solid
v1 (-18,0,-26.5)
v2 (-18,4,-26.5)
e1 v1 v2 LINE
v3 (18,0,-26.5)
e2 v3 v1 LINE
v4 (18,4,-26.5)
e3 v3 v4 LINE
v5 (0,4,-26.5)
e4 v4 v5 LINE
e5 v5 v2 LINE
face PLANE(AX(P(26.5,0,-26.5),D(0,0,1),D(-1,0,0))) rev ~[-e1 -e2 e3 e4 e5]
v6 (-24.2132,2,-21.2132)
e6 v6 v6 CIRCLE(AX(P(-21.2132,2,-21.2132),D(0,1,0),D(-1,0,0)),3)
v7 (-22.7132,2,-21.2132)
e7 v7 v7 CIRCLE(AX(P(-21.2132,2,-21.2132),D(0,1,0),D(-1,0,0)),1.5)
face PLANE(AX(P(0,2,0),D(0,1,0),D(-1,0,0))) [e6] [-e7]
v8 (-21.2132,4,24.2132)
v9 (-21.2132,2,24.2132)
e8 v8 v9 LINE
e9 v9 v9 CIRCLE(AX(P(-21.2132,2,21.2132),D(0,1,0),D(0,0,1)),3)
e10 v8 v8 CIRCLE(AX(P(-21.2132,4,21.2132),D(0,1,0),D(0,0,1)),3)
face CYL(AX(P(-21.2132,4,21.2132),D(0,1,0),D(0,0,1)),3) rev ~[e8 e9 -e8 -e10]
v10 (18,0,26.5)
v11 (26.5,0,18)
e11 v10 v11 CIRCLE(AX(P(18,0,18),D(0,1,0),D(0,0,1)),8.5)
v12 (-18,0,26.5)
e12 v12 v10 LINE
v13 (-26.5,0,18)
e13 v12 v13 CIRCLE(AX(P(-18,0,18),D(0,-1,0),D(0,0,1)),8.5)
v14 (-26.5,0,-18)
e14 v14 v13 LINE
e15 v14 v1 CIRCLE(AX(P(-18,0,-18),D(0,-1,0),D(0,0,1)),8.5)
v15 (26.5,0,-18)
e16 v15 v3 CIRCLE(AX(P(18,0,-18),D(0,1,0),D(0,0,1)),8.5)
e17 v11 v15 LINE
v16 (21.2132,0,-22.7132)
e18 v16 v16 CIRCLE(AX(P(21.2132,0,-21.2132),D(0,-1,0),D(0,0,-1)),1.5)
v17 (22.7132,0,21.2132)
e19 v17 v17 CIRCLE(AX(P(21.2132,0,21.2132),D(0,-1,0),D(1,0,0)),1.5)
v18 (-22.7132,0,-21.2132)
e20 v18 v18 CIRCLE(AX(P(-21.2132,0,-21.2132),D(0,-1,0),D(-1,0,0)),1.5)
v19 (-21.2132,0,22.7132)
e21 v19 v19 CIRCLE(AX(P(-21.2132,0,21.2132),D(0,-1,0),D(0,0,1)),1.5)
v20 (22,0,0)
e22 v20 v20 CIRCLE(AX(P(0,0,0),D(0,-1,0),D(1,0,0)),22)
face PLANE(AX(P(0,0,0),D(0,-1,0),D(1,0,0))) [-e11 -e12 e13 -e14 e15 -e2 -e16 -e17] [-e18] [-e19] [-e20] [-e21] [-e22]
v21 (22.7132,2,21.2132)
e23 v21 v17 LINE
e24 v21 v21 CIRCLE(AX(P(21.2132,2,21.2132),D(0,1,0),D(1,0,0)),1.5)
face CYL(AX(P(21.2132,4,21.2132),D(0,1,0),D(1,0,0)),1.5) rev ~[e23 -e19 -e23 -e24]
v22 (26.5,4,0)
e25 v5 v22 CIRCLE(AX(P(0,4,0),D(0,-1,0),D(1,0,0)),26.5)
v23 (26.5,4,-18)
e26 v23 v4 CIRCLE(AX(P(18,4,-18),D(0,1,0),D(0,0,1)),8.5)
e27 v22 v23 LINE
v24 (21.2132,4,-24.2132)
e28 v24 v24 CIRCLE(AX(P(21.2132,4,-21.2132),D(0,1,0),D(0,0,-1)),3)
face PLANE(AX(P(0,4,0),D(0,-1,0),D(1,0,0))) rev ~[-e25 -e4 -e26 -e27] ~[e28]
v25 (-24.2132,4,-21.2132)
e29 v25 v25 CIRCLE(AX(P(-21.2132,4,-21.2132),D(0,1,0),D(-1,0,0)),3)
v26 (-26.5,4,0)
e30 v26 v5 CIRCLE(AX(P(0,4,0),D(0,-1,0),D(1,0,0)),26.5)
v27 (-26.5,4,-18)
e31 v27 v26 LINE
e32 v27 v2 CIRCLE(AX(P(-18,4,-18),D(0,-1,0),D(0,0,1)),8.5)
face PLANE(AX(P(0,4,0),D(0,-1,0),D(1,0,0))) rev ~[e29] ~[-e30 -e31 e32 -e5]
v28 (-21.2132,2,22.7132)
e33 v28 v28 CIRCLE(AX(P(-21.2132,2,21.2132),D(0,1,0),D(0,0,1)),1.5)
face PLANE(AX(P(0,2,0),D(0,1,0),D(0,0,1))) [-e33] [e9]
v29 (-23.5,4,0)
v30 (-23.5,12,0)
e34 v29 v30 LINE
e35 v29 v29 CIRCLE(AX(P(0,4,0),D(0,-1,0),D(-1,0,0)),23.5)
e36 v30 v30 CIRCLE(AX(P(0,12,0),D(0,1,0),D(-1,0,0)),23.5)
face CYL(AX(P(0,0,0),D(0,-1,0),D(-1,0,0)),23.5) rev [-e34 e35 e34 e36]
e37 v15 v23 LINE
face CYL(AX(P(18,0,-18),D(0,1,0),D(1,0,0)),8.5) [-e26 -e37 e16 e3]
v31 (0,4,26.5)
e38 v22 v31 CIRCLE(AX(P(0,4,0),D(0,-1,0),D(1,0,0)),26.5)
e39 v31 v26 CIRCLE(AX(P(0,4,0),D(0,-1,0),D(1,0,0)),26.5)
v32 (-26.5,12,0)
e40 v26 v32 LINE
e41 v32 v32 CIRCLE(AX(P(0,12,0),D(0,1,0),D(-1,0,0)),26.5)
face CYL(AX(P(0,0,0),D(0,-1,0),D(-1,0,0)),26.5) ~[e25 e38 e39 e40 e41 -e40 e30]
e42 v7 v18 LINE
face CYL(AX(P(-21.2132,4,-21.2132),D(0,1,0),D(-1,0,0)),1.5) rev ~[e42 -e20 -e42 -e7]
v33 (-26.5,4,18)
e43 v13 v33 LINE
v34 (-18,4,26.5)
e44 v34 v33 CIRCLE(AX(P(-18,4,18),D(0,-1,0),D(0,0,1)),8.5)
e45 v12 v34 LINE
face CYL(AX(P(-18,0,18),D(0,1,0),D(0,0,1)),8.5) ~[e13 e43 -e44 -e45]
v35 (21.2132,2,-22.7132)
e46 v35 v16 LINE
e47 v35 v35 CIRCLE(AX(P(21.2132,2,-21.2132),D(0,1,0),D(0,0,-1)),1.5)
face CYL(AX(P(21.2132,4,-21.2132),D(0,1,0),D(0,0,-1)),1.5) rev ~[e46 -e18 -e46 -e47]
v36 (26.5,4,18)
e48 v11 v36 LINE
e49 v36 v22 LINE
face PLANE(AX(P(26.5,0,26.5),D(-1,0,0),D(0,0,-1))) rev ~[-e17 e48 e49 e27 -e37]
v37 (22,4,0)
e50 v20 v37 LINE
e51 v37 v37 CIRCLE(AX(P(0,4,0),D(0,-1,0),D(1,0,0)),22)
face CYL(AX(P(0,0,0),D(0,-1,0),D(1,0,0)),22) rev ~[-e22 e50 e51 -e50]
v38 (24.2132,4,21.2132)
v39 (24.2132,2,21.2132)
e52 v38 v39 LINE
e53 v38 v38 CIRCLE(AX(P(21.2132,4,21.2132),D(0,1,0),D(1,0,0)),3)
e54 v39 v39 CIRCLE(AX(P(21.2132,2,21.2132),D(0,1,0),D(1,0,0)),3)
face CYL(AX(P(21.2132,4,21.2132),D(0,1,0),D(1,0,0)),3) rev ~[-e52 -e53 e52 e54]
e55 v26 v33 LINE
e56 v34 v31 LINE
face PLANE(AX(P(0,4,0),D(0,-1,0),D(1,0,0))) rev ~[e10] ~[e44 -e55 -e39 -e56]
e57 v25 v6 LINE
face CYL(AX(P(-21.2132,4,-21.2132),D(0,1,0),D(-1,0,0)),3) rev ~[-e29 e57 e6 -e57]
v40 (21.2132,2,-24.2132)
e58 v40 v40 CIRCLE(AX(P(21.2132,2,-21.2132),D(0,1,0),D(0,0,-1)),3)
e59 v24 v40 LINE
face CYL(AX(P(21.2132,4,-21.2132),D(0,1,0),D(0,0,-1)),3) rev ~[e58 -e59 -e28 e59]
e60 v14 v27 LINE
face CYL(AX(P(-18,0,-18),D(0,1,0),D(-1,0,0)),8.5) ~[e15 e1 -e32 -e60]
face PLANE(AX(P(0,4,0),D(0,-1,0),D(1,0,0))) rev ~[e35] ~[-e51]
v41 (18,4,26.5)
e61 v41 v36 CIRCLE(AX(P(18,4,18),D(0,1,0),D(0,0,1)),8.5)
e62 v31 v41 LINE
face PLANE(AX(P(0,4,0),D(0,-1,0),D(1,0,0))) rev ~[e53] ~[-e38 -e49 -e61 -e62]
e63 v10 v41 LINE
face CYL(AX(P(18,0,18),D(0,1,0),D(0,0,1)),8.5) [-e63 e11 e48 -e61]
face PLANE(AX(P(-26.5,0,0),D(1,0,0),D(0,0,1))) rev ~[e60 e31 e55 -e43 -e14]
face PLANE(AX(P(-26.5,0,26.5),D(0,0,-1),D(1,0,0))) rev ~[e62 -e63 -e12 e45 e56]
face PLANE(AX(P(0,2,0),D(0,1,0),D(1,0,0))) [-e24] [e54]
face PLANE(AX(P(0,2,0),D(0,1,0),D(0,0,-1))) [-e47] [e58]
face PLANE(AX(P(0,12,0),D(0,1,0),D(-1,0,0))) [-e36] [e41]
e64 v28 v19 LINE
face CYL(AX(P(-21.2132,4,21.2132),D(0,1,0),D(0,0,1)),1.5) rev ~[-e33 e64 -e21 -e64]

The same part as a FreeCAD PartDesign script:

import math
import FreeCAD as App
import Part
import Sketcher

V = App.Vector


def edges_at(feature, points):
    """Names of the edges that pass closest to the given points."""
    edges = feature.Shape.Edges
    near = lambda p: min(range(len(edges)), key=lambda i: edges[i].distToShape(Part.Vertex(*p))[0])
    return sorted({f"Edge{near(p) + 1}" for p in points})

doc = App.newDocument("Part")
body = doc.addObject("PartDesign::Body", "Body")

sketch1 = body.newObject("Sketcher::SketchObject", "Sketch")
sketch1.AttachmentSupport = (doc.getObject("XZ_Plane"), [""])
sketch1.MapMode = "FlatFace"
sketch1.addGeometry([
    Part.Circle(V(0, 0, 0), V(0, 0, 1), 26),
    Part.Circle(V(0, 0, 0), V(0, 0, 1), 24),
], False)
sketch1.addConstraint([
    Sketcher.Constraint("Coincident", 0, 3, -1, 1),
    Sketcher.Constraint("Coincident", 1, 3, -1, 1),
    Sketcher.Constraint("Diameter", 0, 53.0),
    Sketcher.Constraint("Diameter", 1, 47.0),
])
pad1 = body.newObject("PartDesign::Pad", "Pad")
pad1.Profile = sketch1
pad1.Length = 12
pad1.Reversed = True

sketch2 = body.newObject("Sketcher::SketchObject", "Sketch001")
sketch2.AttachmentSupport = (doc.getObject("XZ_Plane"), [""])
sketch2.MapMode = "FlatFace"
sketch2.addGeometry([
    Part.Circle(V(0, 0, 0), V(0, 0, 1), 24),
    Part.Circle(V(0, 0, 0), V(0, 0, 1), 22),
], False)
sketch2.addConstraint([
    Sketcher.Constraint("Coincident", 0, 3, -1, 1),
    Sketcher.Constraint("Coincident", 1, 3, -1, 1),
    Sketcher.Constraint("Diameter", 0, 47.0),
    Sketcher.Constraint("Diameter", 1, 44.0),
])
pad2 = body.newObject("PartDesign::Pad", "Pad001")
pad2.Profile = sketch2
pad2.Length = 4
pad2.Reversed = True

sketch3 = body.newObject("Sketcher::SketchObject", "Sketch002")
sketch3.AttachmentSupport = (doc.getObject("XZ_Plane"), [""])
sketch3.MapMode = "FlatFace"
sketch3.addGeometry([
    Part.LineSegment(V(26, -26, 0), V(26, 0, 0)),
    Part.ArcOfCircle(Part.Circle(V(0, 0, 0), V(0, 0, 1), 26), math.radians(-90), math.radians(0)),
    Part.LineSegment(V(0, -26, 0), V(26, -26, 0)),
    Part.ArcOfCircle(Part.Circle(V(0, 0, 0), V(0, 0, 1), 26), math.radians(0), math.radians(90)),
    Part.LineSegment(V(26, 0, 0), V(26, 26, 0)),
    Part.LineSegment(V(26, 26, 0), V(0, 26, 0)),
    Part.ArcOfCircle(Part.Circle(V(0, 0, 0), V(0, 0, 1), 26), math.radians(90), math.radians(180)),
    Part.LineSegment(V(0, 26, 0), V(-26, 26, 0)),
    Part.LineSegment(V(-26, 26, 0), V(-26, 0, 0)),
    Part.LineSegment(V(-26, -26, 0), V(0, -26, 0)),
    Part.ArcOfCircle(Part.Circle(V(0, 0, 0), V(0, 0, 1), 26), math.radians(180), math.radians(270)),
    Part.LineSegment(V(-26, 0, 0), V(-26, -26, 0)),
], False)
sketch3.addConstraint([
    Sketcher.Constraint("Tangent", 0, 2, 1, 2),
    Sketcher.Constraint("Tangent", 1, 1, 2, 1),
    Sketcher.Constraint("Coincident", 2, 2, 0, 1),
    Sketcher.Constraint("Tangent", 3, 1, 4, 1),
    Sketcher.Constraint("Coincident", 4, 2, 5, 1),
    Sketcher.Constraint("Tangent", 5, 2, 3, 2),
    Sketcher.Constraint("Tangent", 6, 1, 7, 1),
    Sketcher.Constraint("Coincident", 7, 2, 8, 1),
    Sketcher.Constraint("Tangent", 8, 2, 6, 2),
    Sketcher.Constraint("Tangent", 9, 2, 10, 2),
    Sketcher.Constraint("Tangent", 10, 1, 11, 1),
    Sketcher.Constraint("Coincident", 11, 2, 9, 1),
    Sketcher.Constraint("Vertical", 0),
    Sketcher.Constraint("Horizontal", 2),
    Sketcher.Constraint("Vertical", 4),
    Sketcher.Constraint("Horizontal", 5),
    Sketcher.Constraint("Horizontal", 7),
    Sketcher.Constraint("Vertical", 8),
    Sketcher.Constraint("Horizontal", 9),
    Sketcher.Constraint("Vertical", 11),
    Sketcher.Constraint("Coincident", 1, 3, -1, 1),
    Sketcher.Constraint("Coincident", 3, 3, -1, 1),
    Sketcher.Constraint("Coincident", 6, 3, -1, 1),
    Sketcher.Constraint("Coincident", 10, 3, -1, 1),
    Sketcher.Constraint("Equal", 1, 3),
    Sketcher.Constraint("Equal", 3, 6),
    Sketcher.Constraint("Equal", 6, 10),
    Sketcher.Constraint("Radius", 1, 26.5),
])
pad3 = body.newObject("PartDesign::Pad", "Pad002")
pad3.Profile = sketch3
pad3.Length = 4
pad3.Reversed = True

sketch4 = body.newObject("Sketcher::SketchObject", "Sketch003")
sketch4.AttachmentSupport = (doc.getObject("XZ_Plane"), [""])
sketch4.MapMode = "FlatFace"
sketch4.AttachmentOffset = App.Placement(V(0, 0, -4), App.Rotation())
sketch4.addGeometry(Part.Circle(V(21.2, 21.2, 0), V(0, 0, 1), 1.5), False)
sketch4.addConstraint([
    Sketcher.Constraint("Diameter", 0, 3.0),
    Sketcher.Constraint("DistanceX", -1, 1, 0, 3, 21.2132),
    Sketcher.Constraint("DistanceY", -1, 1, 0, 3, 21.2132),
])
pocket1 = body.newObject("PartDesign::Pocket", "Pocket")
pocket1.Profile = sketch4
pocket1.Length = 4
pocket1.Reversed = True
doc.recompute()

polarpattern = body.newObject("PartDesign::PolarPattern", "PolarPattern")
polarpattern.Originals = [pocket1]
polarpattern.Axis = (doc.getObject("Y_Axis"), [""])
polarpattern.Angle = 360
polarpattern.Occurrences = 4
body.Tip = polarpattern

sketch5 = body.newObject("Sketcher::SketchObject", "Sketch004")
sketch5.AttachmentSupport = (doc.getObject("XZ_Plane"), [""])
sketch5.MapMode = "FlatFace"
sketch5.AttachmentOffset = App.Placement(V(0, 0, -4), App.Rotation())
sketch5.addGeometry([
    Part.Circle(V(21.2, 21.2, 0), V(0, 0, 1), 3),
    Part.Circle(V(21.2, 21.2, 0), V(0, 0, 1), 1.5),
], False)
sketch5.addConstraint([
    Sketcher.Constraint("Coincident", 1, 3, 0, 3),
    Sketcher.Constraint("Diameter", 0, 6.0),
    Sketcher.Constraint("Diameter", 1, 3.0),
    Sketcher.Constraint("DistanceX", -1, 1, 0, 3, 21.2132),
    Sketcher.Constraint("DistanceY", -1, 1, 0, 3, 21.2132),
])
pocket2 = body.newObject("PartDesign::Pocket", "Pocket001")
pocket2.Profile = sketch5
pocket2.Length = 2
pocket2.Reversed = True
doc.recompute()

polarpattern2 = body.newObject("PartDesign::PolarPattern", "PolarPattern001")
polarpattern2.Originals = [pocket2]
polarpattern2.Axis = (doc.getObject("Y_Axis"), [""])
polarpattern2.Angle = 360
polarpattern2.Occurrences = 4
body.Tip = polarpattern2
doc.recompute()

fillet = body.newObject("PartDesign::Fillet", "Fillet")
fillet.Base = (polarpattern2, edges_at(polarpattern2, [
    (26.5, 2, -26.5),
    (26.5, 2, 26.5),
    (-26.5, 2, -26.5),
    (-26.5, 2, 26.5),
]))
fillet.Radius = 8.5

doc.recompute()
